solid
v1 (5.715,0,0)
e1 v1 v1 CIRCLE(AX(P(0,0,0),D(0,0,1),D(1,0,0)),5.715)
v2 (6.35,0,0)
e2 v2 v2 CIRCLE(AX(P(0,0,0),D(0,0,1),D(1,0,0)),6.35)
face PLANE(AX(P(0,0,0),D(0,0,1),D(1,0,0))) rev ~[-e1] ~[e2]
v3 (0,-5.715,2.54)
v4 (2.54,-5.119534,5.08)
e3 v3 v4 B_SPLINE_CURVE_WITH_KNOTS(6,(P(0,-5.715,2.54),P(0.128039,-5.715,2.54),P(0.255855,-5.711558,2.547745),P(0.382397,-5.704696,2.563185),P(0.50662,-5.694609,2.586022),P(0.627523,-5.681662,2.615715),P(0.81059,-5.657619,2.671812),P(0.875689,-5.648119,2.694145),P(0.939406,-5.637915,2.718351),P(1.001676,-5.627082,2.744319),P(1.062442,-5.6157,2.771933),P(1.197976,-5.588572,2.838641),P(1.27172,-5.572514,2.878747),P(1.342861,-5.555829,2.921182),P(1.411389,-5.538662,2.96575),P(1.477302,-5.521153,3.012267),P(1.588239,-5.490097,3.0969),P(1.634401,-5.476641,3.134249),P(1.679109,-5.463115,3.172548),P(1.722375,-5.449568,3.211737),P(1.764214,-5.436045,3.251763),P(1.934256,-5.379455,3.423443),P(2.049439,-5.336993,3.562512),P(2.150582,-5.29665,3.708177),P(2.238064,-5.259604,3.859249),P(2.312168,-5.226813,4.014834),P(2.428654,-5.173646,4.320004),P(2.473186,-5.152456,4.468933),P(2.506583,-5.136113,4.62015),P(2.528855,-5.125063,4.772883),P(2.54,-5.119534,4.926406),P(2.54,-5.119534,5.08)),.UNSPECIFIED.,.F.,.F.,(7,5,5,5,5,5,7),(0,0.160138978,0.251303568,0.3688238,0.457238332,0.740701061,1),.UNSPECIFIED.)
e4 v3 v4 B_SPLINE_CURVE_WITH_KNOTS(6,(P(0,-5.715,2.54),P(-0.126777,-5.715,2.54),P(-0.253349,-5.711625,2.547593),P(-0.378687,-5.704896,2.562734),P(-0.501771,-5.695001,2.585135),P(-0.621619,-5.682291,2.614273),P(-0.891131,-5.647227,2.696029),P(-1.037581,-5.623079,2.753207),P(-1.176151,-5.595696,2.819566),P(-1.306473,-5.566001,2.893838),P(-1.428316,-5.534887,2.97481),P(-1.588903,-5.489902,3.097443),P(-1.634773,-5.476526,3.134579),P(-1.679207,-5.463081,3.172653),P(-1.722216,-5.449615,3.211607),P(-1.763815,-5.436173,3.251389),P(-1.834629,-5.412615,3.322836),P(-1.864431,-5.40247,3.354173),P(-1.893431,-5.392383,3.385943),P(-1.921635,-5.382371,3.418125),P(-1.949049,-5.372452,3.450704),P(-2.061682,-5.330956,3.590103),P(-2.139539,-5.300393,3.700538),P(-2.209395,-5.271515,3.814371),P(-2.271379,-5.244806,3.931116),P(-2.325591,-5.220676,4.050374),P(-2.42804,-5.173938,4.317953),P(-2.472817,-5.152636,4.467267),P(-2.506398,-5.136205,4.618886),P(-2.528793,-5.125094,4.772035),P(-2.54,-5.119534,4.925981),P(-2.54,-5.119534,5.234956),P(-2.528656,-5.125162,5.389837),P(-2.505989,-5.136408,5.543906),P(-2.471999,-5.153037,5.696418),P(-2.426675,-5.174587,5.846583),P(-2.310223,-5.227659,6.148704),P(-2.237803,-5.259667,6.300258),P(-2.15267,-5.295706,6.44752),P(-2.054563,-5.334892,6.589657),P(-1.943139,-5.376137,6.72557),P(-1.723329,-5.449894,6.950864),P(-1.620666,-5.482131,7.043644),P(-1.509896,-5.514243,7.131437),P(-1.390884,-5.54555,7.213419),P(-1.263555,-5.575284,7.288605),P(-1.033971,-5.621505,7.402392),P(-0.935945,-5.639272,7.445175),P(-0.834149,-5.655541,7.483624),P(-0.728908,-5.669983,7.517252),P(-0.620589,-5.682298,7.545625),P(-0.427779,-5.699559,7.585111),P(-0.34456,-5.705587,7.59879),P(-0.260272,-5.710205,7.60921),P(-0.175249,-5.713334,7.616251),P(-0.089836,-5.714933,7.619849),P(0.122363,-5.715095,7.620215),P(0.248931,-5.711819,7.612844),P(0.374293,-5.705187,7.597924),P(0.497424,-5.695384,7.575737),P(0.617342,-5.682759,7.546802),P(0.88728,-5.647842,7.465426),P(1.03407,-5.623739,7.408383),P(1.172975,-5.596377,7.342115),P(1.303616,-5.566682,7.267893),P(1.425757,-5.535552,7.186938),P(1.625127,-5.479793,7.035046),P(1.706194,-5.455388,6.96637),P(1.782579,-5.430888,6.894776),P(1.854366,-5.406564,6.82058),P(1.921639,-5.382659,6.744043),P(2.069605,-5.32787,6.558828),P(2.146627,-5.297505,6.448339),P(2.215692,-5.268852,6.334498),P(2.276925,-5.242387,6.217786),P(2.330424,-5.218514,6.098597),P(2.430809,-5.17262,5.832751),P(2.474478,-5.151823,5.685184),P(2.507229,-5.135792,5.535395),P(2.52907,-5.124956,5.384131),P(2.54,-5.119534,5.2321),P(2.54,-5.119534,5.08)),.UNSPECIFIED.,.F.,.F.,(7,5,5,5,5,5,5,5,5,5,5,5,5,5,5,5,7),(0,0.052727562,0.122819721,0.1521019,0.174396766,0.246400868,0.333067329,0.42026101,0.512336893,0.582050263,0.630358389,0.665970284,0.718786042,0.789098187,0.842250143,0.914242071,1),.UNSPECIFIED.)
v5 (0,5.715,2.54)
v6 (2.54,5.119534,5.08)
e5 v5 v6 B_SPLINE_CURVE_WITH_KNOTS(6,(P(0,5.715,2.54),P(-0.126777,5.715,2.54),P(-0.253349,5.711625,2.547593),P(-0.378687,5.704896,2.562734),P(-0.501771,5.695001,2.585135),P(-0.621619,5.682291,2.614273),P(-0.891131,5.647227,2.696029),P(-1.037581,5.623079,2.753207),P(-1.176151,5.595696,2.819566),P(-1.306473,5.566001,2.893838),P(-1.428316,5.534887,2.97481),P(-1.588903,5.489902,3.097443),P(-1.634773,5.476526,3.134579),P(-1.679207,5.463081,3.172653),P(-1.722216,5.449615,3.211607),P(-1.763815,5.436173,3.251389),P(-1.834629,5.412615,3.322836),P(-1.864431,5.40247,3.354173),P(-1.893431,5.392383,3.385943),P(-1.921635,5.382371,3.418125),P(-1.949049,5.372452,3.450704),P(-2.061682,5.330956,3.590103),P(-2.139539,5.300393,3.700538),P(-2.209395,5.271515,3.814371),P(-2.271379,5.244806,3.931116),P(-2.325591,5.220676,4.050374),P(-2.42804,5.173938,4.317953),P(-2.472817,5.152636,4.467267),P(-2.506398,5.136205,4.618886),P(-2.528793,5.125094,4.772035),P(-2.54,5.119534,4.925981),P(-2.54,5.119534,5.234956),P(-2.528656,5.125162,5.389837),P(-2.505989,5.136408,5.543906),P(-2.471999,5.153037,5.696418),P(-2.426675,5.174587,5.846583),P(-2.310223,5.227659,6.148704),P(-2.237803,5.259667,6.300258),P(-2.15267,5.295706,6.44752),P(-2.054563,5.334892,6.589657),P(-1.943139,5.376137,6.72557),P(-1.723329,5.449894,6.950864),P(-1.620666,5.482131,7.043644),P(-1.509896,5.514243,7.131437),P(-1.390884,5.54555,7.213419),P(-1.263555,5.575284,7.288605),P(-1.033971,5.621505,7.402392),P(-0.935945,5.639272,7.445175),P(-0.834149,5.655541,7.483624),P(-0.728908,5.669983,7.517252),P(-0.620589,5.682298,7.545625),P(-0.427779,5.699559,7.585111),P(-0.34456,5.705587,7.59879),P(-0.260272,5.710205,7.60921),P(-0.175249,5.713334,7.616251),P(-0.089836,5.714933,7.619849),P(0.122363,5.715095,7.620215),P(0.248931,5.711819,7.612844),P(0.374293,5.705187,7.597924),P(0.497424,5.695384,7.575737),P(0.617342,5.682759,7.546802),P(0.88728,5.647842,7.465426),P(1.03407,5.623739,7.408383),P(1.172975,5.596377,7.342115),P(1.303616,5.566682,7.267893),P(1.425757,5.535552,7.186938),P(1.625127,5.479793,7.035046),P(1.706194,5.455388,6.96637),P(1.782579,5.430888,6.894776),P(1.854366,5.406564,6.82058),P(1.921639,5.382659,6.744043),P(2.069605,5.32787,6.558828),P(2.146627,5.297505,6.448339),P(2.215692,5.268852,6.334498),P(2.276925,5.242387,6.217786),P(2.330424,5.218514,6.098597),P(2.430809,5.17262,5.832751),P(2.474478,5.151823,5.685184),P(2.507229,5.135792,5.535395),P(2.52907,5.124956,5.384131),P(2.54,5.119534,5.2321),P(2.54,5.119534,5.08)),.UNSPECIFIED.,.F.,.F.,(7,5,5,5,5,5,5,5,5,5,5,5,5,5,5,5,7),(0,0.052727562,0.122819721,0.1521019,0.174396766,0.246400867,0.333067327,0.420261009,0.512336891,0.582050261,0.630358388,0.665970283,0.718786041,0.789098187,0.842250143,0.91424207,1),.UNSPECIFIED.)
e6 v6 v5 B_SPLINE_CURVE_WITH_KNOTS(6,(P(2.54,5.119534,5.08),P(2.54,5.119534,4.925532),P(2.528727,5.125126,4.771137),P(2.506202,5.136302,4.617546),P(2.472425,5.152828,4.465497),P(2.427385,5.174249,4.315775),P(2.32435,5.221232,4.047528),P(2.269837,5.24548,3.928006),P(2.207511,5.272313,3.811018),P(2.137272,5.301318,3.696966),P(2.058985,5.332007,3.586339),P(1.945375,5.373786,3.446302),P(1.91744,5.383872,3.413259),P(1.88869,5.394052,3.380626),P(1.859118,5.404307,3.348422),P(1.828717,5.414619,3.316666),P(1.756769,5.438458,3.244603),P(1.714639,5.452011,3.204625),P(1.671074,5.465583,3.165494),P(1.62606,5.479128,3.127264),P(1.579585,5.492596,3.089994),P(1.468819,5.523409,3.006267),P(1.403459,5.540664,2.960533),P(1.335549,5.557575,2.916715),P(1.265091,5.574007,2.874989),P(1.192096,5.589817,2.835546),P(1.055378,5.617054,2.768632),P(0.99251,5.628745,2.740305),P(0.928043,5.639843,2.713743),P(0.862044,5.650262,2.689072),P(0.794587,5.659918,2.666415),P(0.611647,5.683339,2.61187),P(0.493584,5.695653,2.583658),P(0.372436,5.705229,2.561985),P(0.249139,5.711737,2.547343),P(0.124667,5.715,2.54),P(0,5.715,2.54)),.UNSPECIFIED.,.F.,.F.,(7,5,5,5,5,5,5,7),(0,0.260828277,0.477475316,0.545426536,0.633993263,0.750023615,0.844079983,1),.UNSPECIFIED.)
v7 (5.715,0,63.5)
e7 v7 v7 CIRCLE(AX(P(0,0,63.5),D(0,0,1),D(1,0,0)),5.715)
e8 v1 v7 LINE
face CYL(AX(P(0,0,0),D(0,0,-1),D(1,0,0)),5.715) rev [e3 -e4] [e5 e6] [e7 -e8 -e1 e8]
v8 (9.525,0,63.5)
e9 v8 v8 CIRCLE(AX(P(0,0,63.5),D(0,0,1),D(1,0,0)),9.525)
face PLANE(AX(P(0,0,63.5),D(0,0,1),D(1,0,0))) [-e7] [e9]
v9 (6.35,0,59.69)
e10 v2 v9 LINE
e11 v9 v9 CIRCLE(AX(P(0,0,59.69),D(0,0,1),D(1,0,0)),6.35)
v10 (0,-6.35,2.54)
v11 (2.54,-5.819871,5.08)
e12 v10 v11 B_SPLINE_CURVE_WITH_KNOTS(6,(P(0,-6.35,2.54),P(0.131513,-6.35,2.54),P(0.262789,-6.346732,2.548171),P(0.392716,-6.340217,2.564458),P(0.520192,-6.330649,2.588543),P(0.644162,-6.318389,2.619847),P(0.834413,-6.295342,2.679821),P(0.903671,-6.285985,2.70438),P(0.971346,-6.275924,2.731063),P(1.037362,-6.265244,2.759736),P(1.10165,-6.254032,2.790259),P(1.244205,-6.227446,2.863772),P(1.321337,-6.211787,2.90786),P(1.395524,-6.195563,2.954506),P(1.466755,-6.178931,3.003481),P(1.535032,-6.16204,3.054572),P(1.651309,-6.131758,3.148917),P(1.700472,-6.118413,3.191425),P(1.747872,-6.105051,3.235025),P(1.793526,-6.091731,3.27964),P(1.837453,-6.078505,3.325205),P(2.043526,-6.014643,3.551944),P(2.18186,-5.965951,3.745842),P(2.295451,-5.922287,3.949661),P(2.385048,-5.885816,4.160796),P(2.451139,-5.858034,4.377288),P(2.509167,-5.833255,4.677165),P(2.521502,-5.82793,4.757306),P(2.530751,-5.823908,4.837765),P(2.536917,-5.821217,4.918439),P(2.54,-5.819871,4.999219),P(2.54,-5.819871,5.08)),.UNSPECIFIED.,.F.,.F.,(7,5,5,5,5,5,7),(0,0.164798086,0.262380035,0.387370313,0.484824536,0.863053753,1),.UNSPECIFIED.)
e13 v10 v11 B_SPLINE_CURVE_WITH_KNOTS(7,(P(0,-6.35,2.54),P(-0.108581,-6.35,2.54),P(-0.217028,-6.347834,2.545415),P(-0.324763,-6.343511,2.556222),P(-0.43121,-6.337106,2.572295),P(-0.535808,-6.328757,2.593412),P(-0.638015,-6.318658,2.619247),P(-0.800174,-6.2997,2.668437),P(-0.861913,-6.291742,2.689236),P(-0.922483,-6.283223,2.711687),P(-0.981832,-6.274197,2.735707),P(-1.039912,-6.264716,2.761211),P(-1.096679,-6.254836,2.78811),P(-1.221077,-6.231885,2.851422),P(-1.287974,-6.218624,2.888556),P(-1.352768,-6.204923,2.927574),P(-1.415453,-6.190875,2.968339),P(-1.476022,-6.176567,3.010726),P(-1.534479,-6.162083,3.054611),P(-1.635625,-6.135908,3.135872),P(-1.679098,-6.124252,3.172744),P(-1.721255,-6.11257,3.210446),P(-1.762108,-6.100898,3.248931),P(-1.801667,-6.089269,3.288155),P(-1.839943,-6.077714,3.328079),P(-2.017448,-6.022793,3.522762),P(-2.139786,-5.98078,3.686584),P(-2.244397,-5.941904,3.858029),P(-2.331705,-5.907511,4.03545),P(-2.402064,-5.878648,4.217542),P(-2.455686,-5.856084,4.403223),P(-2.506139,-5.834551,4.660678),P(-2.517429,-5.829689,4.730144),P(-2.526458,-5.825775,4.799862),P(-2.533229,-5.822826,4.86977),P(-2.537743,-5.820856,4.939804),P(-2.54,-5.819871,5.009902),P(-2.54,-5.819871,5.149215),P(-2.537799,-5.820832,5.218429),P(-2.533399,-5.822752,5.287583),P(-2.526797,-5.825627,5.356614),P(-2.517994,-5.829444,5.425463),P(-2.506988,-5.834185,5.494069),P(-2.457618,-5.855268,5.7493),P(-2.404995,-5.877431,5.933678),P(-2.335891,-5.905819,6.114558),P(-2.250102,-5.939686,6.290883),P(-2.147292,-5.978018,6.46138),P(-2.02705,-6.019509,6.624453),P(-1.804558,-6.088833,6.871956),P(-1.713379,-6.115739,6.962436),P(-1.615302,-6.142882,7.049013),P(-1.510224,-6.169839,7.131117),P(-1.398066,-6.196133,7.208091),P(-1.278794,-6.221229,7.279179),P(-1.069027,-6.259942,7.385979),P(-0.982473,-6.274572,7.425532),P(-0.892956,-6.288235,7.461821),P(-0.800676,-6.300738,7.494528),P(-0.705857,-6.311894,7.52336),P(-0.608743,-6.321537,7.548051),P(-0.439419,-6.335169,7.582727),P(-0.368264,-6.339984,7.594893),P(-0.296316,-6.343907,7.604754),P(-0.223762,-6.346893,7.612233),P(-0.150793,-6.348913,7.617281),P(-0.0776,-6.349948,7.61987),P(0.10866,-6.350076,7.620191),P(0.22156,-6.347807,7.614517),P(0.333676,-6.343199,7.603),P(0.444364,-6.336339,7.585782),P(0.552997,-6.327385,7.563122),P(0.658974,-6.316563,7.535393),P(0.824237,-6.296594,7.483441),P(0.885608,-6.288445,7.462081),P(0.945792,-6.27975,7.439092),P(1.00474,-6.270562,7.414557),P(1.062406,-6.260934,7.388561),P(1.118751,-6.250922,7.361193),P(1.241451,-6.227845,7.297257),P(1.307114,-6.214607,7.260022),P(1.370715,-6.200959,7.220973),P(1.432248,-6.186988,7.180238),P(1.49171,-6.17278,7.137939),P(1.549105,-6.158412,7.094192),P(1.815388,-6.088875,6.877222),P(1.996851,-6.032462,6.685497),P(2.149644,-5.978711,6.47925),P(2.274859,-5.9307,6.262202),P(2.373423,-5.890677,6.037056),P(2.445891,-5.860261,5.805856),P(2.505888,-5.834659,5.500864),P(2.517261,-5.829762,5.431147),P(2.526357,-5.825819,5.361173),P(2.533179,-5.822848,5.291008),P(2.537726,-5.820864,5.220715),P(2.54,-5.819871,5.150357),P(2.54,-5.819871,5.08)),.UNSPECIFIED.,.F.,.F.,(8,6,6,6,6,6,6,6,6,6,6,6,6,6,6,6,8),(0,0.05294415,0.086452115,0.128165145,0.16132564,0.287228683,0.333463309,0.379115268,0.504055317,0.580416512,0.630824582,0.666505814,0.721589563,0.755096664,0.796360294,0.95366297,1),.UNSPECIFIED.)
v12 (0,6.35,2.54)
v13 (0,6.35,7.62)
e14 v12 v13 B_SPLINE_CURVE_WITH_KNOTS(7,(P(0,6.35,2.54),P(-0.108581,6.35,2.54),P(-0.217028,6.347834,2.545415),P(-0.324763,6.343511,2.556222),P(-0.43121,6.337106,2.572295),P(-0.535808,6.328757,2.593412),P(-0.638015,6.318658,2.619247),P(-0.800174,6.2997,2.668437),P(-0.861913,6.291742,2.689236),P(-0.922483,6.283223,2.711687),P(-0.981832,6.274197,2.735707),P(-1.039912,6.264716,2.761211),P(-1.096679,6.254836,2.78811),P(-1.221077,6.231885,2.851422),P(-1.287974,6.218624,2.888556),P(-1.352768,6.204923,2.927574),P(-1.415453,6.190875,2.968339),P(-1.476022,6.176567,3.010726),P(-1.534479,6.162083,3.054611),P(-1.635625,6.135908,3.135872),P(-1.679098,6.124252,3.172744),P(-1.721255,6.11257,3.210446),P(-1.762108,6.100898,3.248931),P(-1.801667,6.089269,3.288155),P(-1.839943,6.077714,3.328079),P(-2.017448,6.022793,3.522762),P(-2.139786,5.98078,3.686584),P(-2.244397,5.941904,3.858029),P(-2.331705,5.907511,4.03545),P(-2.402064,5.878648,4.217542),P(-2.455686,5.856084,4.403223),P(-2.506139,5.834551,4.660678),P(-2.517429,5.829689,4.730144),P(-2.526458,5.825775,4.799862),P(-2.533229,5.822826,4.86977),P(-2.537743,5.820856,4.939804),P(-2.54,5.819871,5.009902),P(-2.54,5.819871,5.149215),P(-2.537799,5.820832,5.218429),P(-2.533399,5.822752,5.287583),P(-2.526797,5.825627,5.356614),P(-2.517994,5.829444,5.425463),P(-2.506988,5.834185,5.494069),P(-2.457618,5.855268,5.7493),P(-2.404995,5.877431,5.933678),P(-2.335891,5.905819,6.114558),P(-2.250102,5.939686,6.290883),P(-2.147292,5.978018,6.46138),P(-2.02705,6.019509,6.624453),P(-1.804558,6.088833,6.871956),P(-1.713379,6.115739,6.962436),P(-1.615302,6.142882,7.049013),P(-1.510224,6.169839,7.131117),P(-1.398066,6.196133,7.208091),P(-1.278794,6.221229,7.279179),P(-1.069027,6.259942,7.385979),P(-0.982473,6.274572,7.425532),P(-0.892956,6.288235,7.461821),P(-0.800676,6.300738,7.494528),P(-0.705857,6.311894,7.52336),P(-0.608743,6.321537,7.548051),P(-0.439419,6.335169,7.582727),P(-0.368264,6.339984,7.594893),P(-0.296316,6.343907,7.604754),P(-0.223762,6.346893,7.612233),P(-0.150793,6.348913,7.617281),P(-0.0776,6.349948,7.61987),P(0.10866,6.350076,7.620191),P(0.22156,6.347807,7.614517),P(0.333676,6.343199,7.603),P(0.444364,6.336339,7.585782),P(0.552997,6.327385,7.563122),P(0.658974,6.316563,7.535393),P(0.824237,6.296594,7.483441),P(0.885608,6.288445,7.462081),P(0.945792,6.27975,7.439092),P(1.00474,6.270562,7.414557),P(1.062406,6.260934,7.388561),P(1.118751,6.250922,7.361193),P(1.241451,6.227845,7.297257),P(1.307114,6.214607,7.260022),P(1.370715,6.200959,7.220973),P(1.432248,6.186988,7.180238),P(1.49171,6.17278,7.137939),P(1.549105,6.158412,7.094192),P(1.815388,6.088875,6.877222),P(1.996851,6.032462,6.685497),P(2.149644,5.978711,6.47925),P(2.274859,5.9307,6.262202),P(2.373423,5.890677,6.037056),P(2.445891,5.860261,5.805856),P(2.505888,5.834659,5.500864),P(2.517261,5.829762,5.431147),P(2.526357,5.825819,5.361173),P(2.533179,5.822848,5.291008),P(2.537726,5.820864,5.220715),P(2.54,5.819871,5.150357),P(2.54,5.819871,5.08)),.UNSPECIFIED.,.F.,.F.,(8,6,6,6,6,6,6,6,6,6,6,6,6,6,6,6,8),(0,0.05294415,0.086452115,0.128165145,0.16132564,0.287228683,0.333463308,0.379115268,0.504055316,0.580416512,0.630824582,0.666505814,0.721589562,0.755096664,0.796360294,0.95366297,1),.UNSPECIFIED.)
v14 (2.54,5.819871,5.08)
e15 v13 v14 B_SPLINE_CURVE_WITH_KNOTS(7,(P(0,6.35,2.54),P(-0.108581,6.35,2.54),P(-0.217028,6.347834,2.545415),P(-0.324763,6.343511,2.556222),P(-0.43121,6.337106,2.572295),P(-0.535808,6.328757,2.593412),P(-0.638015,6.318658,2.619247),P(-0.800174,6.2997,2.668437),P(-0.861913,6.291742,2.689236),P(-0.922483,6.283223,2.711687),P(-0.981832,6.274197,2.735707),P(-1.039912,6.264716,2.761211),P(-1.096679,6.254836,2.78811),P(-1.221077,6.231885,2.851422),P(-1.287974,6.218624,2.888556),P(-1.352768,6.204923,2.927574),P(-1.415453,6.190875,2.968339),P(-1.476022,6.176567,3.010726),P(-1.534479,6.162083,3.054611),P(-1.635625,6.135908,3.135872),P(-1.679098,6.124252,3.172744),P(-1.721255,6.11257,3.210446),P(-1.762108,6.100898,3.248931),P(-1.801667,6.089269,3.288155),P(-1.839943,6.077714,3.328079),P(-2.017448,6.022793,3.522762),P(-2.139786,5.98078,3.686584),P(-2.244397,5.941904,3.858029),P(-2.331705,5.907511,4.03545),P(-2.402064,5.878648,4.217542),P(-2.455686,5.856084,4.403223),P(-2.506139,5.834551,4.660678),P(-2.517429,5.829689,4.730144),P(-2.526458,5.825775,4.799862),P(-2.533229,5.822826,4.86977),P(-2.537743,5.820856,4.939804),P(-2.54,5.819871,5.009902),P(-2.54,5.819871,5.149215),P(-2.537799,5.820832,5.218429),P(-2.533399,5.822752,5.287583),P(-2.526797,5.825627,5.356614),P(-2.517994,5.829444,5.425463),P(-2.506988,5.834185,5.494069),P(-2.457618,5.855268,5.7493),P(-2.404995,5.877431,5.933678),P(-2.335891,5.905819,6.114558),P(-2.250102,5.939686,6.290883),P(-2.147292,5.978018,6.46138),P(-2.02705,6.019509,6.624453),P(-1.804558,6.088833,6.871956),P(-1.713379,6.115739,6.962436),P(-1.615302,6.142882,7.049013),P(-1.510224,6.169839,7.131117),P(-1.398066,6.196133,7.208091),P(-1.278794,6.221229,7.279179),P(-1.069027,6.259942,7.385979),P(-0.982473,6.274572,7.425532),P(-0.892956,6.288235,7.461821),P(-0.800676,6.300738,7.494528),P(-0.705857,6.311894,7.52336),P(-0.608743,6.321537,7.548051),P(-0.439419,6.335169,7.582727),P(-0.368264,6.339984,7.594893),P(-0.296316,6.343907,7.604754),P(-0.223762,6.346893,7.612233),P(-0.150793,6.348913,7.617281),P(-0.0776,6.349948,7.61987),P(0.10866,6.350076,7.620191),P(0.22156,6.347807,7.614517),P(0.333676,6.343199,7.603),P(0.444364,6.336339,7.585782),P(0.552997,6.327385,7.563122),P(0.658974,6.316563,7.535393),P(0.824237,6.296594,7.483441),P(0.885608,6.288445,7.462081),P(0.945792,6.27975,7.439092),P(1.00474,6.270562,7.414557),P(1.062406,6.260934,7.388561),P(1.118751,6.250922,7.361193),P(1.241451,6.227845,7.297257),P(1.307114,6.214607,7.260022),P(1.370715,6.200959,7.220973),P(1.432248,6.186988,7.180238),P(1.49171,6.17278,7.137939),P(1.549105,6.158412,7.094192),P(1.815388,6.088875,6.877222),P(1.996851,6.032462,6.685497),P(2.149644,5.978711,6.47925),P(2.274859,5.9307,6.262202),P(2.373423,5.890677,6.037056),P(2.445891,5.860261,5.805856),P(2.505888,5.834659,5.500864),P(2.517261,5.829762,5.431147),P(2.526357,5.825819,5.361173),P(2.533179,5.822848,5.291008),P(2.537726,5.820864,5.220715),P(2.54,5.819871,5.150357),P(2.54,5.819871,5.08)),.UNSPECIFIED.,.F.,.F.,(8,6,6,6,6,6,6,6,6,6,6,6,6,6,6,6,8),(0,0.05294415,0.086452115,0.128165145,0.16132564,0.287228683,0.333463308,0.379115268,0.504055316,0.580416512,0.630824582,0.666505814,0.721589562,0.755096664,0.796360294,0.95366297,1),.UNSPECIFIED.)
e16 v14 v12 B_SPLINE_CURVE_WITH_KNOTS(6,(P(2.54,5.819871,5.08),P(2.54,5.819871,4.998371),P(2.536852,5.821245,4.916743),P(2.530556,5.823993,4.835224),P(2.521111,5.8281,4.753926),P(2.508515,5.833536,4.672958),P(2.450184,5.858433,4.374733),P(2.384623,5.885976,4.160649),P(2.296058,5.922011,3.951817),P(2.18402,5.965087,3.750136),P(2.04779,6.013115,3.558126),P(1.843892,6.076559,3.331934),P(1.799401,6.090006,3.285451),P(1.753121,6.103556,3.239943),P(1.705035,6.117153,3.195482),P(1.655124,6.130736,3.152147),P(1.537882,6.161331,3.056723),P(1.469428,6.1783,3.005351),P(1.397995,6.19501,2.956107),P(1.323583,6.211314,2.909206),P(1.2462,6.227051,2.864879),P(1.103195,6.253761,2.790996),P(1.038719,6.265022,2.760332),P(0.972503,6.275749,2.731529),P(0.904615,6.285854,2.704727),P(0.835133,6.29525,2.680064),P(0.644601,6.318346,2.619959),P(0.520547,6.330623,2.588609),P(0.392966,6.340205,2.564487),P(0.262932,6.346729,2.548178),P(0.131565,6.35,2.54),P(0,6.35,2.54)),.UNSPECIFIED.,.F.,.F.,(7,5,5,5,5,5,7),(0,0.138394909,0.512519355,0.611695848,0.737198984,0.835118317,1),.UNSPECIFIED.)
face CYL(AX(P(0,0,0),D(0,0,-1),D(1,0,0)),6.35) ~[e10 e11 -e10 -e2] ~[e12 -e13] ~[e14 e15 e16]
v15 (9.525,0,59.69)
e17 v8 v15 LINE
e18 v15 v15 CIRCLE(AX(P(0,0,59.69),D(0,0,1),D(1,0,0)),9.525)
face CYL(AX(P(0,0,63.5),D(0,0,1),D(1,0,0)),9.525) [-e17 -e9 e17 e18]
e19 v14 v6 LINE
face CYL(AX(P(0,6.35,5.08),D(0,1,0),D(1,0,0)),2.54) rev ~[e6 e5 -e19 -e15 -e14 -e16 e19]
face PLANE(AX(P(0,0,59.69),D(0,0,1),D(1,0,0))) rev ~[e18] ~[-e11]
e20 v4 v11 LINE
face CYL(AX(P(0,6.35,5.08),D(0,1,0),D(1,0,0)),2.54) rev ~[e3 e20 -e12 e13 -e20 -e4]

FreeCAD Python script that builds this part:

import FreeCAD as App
import Part
import Sketcher
Q = App.Units.Quantity

doc = App.newDocument("Part")
body = doc.addObject("PartDesign::Body", "Body")

# Sketch on XY plane
sketch1 = doc.addObject("Sketcher::SketchObject", "Sketch")
body.addObject(sketch1)
sketch1.AttachmentSupport = (doc.XY_Plane, [""])
sketch1.MapMode = "FlatFace"
sketch1.addGeometry([
    Part.Circle(App.Vector(0, 0, 0), App.Vector(0, 0, 1), 6),
    Part.Circle(App.Vector(0, 0, 0), App.Vector(0, 0, 1), 6),
], False)
sketch1.addConstraint([
    Sketcher.Constraint("Coincident", 0, 3, -1, 1),
    Sketcher.Constraint("Coincident", 1, 3, -1, 1),
    Sketcher.Constraint("Diameter", 0, Q("0.5 in")),
    Sketcher.Constraint("Diameter", 1, Q("0.45 in")),
])
pad1 = doc.addObject("PartDesign::Pad", "Pad")
body.addObject(pad1)
pad1.Profile = sketch1
pad1.Length = Q("2.5 in")

# Sketch on XY plane
sketch2 = doc.addObject("Sketcher::SketchObject", "Sketch001")
body.addObject(sketch2)
sketch2.AttachmentSupport = (doc.XY_Plane, [""])
sketch2.MapMode = "FlatFace"
sketch2.AttachmentOffset = App.Placement(App.Vector(0, 0, 2.5 * 25.4), App.Rotation())
sketch2.addGeometry([
    Part.Circle(App.Vector(0, 0, 0), App.Vector(0, 0, 1), 10),
    Part.Circle(App.Vector(0, 0, 0), App.Vector(0, 0, 1), 6),
], False)
sketch2.addConstraint([
    Sketcher.Constraint("Coincident", 0, 3, -1, 1),
    Sketcher.Constraint("Coincident", 1, 3, -1, 1),
    Sketcher.Constraint("Diameter", 0, Q("0.75 in")),
    Sketcher.Constraint("Diameter", 1, Q("0.5 in")),
])
pad2 = doc.addObject("PartDesign::Pad", "Pad001")
body.addObject(pad2)
pad2.Profile = sketch2
pad2.Length = Q("0.15 in")
pad2.Reversed = True

# Sketch on XZ plane
sketch3 = doc.addObject("Sketcher::SketchObject", "Sketch002")
body.addObject(sketch3)
sketch3.AttachmentSupport = (doc.XZ_Plane, [""])
sketch3.MapMode = "FlatFace"
sketch3.AttachmentOffset = App.Placement(App.Vector(0, 0, -0.25 * 25.4), App.Rotation())
sketch3.addGeometry(Part.Circle(App.Vector(0, 5.1, 0), App.Vector(0, 0, 1), 2.5), False)
sketch3.addConstraint([
    Sketcher.Constraint("PointOnObject", 0, 3, -2),
    Sketcher.Constraint("Diameter", 0, Q("0.2 in")),
    Sketcher.Constraint("DistanceY", -1, 1, 0, 3, Q("0.2 in")),
])
pocket1 = doc.addObject("PartDesign::Pocket", "Pocket")
body.addObject(pocket1)
pocket1.Profile = sketch3
pocket1.Length = Q("2 in")
pocket1.Reversed = True

doc.recompute()
